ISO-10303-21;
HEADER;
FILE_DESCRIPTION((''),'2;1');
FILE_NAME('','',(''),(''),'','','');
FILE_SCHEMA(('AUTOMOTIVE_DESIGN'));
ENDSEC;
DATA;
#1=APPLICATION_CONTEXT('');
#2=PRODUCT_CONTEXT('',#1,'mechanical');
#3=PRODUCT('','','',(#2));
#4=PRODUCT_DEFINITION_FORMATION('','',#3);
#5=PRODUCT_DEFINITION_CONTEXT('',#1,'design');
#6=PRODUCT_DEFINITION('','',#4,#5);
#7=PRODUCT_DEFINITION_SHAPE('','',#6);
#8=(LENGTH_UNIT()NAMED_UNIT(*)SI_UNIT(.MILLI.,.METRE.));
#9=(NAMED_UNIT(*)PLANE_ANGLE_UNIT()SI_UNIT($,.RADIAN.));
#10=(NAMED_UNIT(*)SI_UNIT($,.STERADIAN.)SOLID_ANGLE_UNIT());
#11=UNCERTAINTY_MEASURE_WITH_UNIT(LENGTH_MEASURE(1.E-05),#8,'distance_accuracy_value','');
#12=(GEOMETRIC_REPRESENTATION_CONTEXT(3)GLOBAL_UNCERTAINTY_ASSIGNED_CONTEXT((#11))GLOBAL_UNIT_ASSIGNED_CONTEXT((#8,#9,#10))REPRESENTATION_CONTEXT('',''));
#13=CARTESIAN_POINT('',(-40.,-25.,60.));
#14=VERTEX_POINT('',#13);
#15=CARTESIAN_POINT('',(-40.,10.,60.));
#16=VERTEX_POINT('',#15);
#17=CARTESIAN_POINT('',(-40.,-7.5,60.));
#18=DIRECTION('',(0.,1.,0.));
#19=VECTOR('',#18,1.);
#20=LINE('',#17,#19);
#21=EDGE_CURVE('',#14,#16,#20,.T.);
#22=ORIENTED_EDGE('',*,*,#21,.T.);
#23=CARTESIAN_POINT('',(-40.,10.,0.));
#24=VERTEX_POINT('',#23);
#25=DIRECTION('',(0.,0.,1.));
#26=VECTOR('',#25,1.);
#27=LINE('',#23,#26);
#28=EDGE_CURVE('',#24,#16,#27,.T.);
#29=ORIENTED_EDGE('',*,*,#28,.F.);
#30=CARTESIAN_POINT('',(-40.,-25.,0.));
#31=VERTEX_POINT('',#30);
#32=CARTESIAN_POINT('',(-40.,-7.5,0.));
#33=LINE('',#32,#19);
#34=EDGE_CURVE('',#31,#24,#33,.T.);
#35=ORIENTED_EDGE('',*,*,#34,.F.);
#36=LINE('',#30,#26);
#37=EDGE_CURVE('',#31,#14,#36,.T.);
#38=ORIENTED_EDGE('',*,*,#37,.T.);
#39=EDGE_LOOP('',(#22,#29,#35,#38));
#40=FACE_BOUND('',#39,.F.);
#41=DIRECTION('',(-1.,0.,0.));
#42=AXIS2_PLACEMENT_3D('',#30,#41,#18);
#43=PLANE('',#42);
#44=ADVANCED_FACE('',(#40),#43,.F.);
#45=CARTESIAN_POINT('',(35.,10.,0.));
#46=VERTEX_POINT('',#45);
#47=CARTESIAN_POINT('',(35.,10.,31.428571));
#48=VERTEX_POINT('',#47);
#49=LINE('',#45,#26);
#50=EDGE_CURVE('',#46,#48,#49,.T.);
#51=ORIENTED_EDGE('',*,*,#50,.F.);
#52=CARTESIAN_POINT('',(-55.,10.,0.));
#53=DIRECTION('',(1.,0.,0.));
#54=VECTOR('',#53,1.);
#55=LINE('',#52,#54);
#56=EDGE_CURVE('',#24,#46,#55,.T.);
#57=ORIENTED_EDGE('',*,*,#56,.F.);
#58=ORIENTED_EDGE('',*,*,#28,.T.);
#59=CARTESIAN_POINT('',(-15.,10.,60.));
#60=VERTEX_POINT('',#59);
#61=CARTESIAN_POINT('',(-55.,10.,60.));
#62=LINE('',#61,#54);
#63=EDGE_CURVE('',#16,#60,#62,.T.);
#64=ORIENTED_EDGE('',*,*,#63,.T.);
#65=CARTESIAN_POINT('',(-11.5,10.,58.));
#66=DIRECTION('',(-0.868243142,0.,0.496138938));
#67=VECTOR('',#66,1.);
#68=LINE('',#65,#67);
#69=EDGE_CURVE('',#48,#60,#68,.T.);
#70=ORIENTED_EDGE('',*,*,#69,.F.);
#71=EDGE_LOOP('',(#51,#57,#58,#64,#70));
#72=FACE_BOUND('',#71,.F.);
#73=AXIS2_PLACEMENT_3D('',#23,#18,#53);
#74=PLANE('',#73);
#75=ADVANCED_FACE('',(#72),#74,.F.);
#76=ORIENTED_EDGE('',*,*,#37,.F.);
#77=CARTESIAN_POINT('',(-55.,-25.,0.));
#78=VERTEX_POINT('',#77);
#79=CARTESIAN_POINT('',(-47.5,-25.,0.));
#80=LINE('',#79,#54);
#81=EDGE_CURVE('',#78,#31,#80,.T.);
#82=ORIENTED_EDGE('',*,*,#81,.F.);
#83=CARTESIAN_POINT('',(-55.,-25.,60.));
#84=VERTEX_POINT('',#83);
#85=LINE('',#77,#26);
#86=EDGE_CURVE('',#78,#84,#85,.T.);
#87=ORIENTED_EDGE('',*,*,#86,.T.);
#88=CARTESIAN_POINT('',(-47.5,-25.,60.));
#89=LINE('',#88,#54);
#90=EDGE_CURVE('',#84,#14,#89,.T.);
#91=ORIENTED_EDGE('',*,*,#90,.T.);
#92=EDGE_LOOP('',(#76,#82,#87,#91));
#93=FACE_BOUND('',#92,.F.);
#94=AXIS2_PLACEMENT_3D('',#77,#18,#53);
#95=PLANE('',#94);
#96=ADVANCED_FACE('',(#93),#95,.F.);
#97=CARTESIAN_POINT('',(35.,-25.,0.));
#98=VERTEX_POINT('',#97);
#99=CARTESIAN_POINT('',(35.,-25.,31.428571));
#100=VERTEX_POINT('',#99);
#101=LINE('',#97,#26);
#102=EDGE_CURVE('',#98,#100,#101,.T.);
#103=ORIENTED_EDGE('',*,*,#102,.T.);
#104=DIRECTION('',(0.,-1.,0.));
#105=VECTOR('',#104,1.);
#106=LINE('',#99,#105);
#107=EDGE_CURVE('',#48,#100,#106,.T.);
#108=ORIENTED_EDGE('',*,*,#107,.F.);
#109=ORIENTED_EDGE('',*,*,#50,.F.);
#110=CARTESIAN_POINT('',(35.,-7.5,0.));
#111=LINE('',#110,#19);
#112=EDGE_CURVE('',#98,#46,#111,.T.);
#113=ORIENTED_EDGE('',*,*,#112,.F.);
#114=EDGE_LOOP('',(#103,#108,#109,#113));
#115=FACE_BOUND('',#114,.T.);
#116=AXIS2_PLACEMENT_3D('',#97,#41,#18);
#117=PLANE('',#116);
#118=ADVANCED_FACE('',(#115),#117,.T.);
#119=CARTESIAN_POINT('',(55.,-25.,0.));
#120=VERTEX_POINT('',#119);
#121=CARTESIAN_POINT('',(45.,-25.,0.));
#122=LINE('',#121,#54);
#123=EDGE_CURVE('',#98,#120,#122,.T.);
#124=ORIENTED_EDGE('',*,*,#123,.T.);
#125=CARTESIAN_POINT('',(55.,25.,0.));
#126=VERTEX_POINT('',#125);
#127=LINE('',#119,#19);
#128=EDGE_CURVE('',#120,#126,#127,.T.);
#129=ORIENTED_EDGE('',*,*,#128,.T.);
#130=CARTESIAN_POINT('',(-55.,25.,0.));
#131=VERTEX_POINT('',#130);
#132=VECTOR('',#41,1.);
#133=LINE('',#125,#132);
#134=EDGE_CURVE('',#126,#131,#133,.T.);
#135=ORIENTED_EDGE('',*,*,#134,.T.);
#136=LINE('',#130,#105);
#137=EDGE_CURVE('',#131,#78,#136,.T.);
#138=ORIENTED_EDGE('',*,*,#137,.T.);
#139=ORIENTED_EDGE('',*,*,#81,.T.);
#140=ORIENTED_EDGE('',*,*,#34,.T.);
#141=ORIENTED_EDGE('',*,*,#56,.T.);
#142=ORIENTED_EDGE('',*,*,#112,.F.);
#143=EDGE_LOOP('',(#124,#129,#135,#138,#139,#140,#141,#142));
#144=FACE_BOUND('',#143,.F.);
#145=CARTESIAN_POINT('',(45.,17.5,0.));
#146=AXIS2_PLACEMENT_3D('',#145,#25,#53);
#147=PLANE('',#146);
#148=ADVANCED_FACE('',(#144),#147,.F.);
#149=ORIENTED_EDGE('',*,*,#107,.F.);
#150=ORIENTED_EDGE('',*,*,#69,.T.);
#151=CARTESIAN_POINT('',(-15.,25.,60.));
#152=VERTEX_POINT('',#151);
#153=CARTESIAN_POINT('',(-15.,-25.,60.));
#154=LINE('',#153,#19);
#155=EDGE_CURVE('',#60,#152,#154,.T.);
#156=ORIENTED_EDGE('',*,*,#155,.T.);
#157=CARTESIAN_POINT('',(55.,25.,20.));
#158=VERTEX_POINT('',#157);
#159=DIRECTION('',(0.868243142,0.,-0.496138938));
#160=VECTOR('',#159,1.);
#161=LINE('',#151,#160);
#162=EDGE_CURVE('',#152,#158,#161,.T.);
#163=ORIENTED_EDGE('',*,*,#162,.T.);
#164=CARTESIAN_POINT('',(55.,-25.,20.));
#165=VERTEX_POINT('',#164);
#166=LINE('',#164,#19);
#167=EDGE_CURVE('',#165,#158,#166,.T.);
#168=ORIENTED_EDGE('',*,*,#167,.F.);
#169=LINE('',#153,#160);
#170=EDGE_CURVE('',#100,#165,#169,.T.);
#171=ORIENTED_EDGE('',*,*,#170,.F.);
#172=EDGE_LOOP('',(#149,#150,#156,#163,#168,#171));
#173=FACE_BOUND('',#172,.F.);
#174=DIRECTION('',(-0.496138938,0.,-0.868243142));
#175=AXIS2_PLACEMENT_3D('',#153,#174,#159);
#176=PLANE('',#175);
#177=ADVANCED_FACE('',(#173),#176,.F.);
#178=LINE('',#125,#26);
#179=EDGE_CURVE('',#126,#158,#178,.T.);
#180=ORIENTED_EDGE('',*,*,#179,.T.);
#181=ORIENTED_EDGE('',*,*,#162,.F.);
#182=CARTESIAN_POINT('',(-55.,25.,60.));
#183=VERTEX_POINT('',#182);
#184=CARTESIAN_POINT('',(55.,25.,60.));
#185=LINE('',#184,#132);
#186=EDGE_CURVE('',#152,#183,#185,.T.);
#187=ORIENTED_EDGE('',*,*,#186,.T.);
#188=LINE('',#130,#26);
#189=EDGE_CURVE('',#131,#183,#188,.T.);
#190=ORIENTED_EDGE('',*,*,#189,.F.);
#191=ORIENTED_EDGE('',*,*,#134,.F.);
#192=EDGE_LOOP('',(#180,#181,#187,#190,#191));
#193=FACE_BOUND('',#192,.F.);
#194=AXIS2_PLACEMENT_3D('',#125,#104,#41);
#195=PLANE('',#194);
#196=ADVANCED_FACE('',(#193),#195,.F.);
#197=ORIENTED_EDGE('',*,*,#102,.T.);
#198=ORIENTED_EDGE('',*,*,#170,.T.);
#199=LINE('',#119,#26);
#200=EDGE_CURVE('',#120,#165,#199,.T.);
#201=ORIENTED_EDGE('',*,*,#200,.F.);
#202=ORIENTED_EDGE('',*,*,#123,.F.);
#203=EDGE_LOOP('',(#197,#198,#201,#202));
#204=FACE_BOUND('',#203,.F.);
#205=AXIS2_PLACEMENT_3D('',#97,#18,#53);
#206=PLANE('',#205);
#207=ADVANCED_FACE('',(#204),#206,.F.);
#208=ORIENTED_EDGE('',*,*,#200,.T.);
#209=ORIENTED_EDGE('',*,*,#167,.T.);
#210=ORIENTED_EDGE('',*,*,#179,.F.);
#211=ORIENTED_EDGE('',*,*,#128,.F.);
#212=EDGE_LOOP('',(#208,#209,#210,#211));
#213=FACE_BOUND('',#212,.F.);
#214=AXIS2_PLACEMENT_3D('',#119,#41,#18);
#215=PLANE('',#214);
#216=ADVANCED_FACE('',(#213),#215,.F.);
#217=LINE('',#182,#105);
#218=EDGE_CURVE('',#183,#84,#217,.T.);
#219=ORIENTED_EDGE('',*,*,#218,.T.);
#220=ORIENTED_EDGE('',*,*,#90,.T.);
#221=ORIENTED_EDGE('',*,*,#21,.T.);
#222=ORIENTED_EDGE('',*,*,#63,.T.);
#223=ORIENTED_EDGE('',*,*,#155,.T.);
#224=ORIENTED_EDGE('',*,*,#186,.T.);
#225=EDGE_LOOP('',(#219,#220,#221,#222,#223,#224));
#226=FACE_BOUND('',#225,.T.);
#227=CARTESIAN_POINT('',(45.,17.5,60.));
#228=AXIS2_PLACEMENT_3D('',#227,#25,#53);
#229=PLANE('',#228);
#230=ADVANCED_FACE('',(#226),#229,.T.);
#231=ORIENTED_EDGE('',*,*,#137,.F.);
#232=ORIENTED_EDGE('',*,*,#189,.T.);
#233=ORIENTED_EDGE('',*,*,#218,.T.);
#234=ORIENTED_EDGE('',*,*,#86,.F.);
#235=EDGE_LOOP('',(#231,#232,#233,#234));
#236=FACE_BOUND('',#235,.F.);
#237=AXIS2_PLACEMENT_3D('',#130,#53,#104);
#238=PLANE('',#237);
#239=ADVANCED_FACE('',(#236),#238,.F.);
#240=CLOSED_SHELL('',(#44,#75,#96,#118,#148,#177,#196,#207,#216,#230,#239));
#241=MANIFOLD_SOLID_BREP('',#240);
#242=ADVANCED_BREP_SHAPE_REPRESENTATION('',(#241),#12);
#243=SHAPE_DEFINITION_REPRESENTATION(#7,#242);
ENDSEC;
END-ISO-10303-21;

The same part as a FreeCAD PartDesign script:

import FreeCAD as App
import Part
import Sketcher

V = App.Vector

doc = App.newDocument("Part")
body = doc.addObject("PartDesign::Body", "Body")

# Sketch on XY plane
sketch1 = doc.addObject("Sketcher::SketchObject", "Sketch")
body.addObject(sketch1)
sketch1.AttachmentSupport = (doc.XY_Plane, [""])
sketch1.MapMode = "FlatFace"
sketch1.addGeometry([
    Part.LineSegment(V(55, 25, 0), V(-55, 25, 0)),  # 0
    Part.LineSegment(V(-55, 25, 0), V(-55, -25, 0)),  # 1
    Part.LineSegment(V(-55, -25, 0), V(-40, -25, 0)),  # 2
    Part.LineSegment(V(-40, -25, 0), V(-40, 10, 0)),  # 3
    Part.LineSegment(V(-40, 10, 0), V(35, 10, 0)),  # 4
    Part.LineSegment(V(35, 10, 0), V(35, -25, 0)),  # 5
    Part.LineSegment(V(35, -25, 0), V(55, -25, 0)),  # 6
    Part.LineSegment(V(55, -25, 0), V(55, 25, 0)),  # 7
], False)
sketch1.addConstraint([
    Sketcher.Constraint("Coincident", 0, 2, 1, 1),
    Sketcher.Constraint("Coincident", 1, 2, 2, 1),
    Sketcher.Constraint("Coincident", 2, 2, 3, 1),
    Sketcher.Constraint("Coincident", 3, 2, 4, 1),
    Sketcher.Constraint("Coincident", 4, 2, 5, 1),
    Sketcher.Constraint("Coincident", 5, 2, 6, 1),
    Sketcher.Constraint("Coincident", 6, 2, 7, 1),
    Sketcher.Constraint("Coincident", 7, 2, 0, 1),
    Sketcher.Constraint("Horizontal", 0),
    Sketcher.Constraint("Vertical", 1),
    Sketcher.Constraint("Horizontal", 2),
    Sketcher.Constraint("Vertical", 3),
    Sketcher.Constraint("Horizontal", 4),
    Sketcher.Constraint("Vertical", 5),
    Sketcher.Constraint("Horizontal", 6),
    Sketcher.Constraint("Vertical", 7),
    Sketcher.Constraint("Symmetric", 0, 2, 6, 2, -1, 1),
    Sketcher.Constraint("Horizontal", 2, 2, 5, 2),
    Sketcher.Constraint("DistanceX", 0, 2, 0, 1, 110.0),
    Sketcher.Constraint("DistanceX", 2, 1, 2, 2, 15.0),
    Sketcher.Constraint("DistanceX", 4, 1, 4, 2, 75.0),
    Sketcher.Constraint("DistanceY", 1, 2, 1, 1, 50.0),
    Sketcher.Constraint("DistanceY", 3, 1, 3, 2, 35.0),
])
pad1 = doc.addObject("PartDesign::Pad", "Pad")
body.addObject(pad1)
pad1.Profile = sketch1
pad1.Length = 60

# Sketch on XZ plane
sketch2 = doc.addObject("Sketcher::SketchObject", "Sketch001")
body.addObject(sketch2)
sketch2.AttachmentSupport = (doc.XZ_Plane, [""])
sketch2.MapMode = "FlatFace"
sketch2.AttachmentOffset = App.Placement(V(0, 0, 25), App.Rotation())
sketch2.addGeometry([
    Part.LineSegment(V(55, 60, 0), V(-15, 60, 0)),
    Part.LineSegment(V(-15, 60, 0), V(55, 20, 0)),
    Part.LineSegment(V(55, 20, 0), V(55, 60, 0)),
], False)
sketch2.addConstraint([
    Sketcher.Constraint("Coincident", 0, 2, 1, 1),
    Sketcher.Constraint("Coincident", 1, 2, 2, 1),
    Sketcher.Constraint("Coincident", 2, 2, 0, 1),
    Sketcher.Constraint("Horizontal", 0),
    Sketcher.Constraint("Vertical", 2),
    Sketcher.Constraint("DistanceX", 0, 2, 0, 1, 70.0),
    Sketcher.Constraint("DistanceY", 2, 1, 2, 2, 40.0),
    Sketcher.Constraint("DistanceX", 0, 2, -1, 1, 15.0),
    Sketcher.Constraint("DistanceY", -1, 1, 0, 2, 60.0),
])
pocket1 = doc.addObject("PartDesign::Pocket", "Pocket")
body.addObject(pocket1)
pocket1.Profile = sketch2
pocket1.Length = 50

doc.recompute()
